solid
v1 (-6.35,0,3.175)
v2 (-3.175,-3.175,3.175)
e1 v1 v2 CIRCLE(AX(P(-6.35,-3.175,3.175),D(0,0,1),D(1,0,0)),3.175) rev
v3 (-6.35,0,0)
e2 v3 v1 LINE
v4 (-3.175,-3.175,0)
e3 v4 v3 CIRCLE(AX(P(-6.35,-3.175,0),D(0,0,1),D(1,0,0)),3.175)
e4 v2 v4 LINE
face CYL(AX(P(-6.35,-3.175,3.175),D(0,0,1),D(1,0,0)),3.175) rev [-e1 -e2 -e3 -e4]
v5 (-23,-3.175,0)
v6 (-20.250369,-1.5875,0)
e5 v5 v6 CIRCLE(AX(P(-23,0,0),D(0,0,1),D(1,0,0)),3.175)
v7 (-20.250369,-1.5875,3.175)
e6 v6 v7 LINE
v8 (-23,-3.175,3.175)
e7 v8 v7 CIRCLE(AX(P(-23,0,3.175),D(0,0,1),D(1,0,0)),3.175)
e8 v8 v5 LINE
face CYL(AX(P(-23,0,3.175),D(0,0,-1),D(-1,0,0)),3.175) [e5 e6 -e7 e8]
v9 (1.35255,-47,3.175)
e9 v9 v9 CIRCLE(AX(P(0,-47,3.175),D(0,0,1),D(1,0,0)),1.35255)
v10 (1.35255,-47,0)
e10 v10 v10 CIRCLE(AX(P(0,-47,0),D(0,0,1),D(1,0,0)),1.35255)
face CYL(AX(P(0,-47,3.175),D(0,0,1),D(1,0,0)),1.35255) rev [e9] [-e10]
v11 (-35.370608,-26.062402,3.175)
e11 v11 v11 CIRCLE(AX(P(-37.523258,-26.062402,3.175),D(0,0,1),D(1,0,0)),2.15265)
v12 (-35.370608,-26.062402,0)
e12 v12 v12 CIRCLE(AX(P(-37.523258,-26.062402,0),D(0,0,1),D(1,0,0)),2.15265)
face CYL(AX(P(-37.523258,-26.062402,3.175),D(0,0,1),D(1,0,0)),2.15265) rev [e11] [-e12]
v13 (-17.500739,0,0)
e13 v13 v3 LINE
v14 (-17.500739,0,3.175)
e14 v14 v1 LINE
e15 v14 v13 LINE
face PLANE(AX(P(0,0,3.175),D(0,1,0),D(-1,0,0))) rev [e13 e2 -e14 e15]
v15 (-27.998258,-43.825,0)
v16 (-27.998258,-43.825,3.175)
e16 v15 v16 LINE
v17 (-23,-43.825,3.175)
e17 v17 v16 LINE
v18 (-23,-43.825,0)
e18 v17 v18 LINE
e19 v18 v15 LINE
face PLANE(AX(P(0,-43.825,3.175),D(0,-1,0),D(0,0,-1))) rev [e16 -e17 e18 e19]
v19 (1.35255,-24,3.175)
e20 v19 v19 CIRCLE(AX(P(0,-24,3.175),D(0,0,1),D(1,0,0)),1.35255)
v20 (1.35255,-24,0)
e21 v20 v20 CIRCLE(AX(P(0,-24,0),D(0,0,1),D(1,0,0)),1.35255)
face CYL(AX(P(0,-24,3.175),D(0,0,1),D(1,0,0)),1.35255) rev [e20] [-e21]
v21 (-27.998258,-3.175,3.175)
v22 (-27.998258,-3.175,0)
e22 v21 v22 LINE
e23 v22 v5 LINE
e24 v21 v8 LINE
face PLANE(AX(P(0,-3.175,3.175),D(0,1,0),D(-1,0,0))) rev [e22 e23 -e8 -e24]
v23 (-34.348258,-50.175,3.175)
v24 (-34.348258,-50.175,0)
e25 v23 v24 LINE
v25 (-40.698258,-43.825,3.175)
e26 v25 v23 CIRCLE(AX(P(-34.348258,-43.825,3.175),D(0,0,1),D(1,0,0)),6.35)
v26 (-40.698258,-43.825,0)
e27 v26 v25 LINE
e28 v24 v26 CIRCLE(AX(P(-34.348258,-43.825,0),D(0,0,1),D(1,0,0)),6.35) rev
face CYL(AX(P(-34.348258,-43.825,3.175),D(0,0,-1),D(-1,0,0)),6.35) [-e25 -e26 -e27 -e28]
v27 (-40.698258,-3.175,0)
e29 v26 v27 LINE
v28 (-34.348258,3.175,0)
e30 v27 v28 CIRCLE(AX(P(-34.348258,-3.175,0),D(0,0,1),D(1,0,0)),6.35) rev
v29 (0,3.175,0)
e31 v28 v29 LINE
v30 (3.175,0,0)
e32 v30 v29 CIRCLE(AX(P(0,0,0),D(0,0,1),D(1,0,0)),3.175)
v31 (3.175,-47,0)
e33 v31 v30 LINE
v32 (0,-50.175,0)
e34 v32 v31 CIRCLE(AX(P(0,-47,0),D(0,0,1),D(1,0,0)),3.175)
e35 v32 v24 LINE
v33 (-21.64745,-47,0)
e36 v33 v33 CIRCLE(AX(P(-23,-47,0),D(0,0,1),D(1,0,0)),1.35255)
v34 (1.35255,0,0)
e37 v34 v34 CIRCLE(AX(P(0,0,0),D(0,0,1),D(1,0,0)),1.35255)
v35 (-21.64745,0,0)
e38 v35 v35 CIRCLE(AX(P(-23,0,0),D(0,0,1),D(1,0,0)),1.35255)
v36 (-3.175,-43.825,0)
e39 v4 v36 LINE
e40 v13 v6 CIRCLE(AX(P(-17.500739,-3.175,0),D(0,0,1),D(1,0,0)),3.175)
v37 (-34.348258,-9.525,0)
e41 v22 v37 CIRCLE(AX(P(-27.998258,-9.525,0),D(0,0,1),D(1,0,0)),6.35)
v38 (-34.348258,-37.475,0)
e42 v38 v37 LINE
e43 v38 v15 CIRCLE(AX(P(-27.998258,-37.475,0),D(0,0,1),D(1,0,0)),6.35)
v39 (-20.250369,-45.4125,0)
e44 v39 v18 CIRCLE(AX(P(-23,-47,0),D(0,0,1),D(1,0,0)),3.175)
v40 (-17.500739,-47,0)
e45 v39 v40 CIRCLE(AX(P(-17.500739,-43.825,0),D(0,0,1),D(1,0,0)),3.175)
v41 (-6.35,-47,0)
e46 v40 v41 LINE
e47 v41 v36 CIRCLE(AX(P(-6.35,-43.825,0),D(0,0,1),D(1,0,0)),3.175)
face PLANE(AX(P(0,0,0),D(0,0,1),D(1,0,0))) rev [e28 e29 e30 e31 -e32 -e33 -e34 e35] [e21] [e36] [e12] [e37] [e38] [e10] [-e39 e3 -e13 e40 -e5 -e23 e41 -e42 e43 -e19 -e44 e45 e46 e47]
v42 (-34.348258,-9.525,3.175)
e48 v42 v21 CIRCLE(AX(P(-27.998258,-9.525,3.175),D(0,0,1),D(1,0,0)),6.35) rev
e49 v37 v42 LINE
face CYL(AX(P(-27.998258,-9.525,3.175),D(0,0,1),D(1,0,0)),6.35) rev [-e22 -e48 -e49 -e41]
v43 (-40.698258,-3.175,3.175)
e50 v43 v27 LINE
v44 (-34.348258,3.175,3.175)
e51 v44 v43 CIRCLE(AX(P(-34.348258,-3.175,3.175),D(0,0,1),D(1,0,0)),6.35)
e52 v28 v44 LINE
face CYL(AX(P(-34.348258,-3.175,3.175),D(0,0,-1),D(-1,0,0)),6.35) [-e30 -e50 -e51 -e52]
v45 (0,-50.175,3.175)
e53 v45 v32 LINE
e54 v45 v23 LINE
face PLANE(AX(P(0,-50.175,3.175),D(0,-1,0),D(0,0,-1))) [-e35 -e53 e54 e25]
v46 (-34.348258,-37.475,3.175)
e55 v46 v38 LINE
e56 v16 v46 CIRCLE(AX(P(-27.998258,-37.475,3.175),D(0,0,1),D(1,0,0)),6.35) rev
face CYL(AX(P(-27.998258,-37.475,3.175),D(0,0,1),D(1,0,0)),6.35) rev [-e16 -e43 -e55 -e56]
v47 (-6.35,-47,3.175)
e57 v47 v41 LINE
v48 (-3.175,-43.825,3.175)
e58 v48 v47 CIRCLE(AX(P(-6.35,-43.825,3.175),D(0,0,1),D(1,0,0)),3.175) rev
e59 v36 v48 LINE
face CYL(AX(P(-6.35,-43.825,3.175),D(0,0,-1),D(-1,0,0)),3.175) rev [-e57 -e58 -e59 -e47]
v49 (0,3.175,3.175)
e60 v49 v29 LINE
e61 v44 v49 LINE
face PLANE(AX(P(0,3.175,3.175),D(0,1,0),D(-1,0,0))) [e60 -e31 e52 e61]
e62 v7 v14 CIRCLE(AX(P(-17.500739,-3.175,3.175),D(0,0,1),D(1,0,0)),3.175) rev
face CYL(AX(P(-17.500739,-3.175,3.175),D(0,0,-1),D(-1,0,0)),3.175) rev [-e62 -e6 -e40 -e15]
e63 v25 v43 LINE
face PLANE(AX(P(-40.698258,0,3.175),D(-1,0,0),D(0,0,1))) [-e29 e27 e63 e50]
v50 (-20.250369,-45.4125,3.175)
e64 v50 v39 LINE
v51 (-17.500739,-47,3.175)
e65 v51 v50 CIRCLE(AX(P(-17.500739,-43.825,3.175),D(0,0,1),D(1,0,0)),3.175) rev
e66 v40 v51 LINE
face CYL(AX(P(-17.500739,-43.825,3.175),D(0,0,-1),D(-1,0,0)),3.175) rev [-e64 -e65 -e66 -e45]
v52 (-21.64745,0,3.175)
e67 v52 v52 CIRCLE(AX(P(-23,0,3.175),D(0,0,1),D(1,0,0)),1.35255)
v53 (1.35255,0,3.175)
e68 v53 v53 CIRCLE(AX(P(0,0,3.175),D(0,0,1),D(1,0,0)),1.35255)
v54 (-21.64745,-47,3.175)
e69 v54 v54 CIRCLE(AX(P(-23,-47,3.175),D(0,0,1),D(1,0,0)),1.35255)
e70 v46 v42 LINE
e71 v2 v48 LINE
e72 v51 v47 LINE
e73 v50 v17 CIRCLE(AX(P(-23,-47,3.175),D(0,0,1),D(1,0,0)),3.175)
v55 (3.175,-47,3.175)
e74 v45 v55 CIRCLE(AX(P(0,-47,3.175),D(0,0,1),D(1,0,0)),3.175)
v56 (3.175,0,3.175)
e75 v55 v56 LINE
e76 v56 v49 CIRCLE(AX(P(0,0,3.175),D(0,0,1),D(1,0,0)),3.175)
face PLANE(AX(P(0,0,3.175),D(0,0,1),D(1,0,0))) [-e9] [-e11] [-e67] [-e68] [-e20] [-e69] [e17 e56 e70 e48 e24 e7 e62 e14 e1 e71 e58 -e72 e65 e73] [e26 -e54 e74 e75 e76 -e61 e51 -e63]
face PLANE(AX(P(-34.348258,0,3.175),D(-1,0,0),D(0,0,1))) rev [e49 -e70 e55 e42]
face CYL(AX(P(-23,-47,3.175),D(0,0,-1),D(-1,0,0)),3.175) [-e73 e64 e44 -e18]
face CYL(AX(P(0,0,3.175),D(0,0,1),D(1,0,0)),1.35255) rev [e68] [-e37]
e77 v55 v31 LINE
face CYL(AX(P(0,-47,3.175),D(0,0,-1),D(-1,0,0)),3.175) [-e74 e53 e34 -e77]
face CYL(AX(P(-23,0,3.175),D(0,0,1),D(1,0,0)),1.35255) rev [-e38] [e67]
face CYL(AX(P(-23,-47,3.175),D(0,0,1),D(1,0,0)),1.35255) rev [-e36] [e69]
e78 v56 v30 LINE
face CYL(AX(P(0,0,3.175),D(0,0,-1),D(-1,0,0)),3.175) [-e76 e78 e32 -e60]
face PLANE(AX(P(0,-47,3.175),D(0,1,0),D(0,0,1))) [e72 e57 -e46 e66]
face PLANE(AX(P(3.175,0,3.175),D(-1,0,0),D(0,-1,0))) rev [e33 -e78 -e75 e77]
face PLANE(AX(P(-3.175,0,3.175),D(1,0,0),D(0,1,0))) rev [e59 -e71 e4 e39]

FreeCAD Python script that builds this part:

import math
import FreeCAD as App
import Part
import Sketcher
Q = App.Units.Quantity


def edges_at(feature, points):
    """Names of the edges that pass closest to the given points."""
    edges = feature.Shape.Edges
    near = lambda p: min(range(len(edges)), key=lambda i: edges[i].distToShape(Part.Vertex(*p))[0])
    return sorted({f"Edge{near(p) + 1}" for p in points})

doc = App.newDocument("Part")
body = doc.addObject("PartDesign::Body", "Body")

# Sketch on XY plane
sketch1 = doc.addObject("Sketcher::SketchObject", "Sketch")
body.addObject(sketch1)
sketch1.AttachmentSupport = (doc.XY_Plane, [""])
sketch1.MapMode = "FlatFace"
sketch1.addGeometry([
    Part.LineSegment(App.Vector(0, 3.2, 0), App.Vector(-40.7, 3.2, 0)),  # 0
    Part.LineSegment(App.Vector(-40.7, 3.2, 0), App.Vector(-40.7, -50.2, 0)),  # 1
    Part.LineSegment(App.Vector(-40.7, -50.2, 0), App.Vector(0, -50.2, 0)),  # 2
    Part.ArcOfCircle(Part.Circle(App.Vector(0, -47, 0), App.Vector(0, 0, 1), 3.2), math.radians(-90), math.radians(0)),  # 3
    Part.LineSegment(App.Vector(3.2, -47, 0), App.Vector(3.2, 0, 0)),  # 4
    Part.ArcOfCircle(Part.Circle(App.Vector(0, 0, 0), App.Vector(0, 0, 1), 3.2), math.radians(0), math.radians(90)),  # 5
    Part.LineSegment(App.Vector(-34.3, -43.8, 0), App.Vector(-34.3, -3.2, 0)),  # 6
    Part.LineSegment(App.Vector(-34.3, -3.2, 0), App.Vector(-23, -3.2, 0)),  # 7
    Part.ArcOfCircle(Part.Circle(App.Vector(-23, 0, 0), App.Vector(0, 0, 1), 3.2), math.radians(-90), math.radians(0)),  # 8
    Part.LineSegment(App.Vector(-19.8, 0, 0), App.Vector(-3.2, 0, 0)),  # 9
    Part.LineSegment(App.Vector(-3.2, 0, 0), App.Vector(-3.2, -47, 0)),  # 10
    Part.LineSegment(App.Vector(-3.2, -47, 0), App.Vector(-19.8, -47, 0)),  # 11
    Part.ArcOfCircle(Part.Circle(App.Vector(-23, -47, 0), App.Vector(0, 0, 1), 3.2), math.radians(0), math.radians(90)),  # 12
    Part.LineSegment(App.Vector(-23, -43.8, 0), App.Vector(-34.3, -43.8, 0)),  # 13
], False)
sketch1.addConstraint([
    Sketcher.Constraint("Coincident", 0, 2, 1, 1),
    Sketcher.Constraint("Coincident", 1, 2, 2, 1),
    Sketcher.Constraint("Tangent", 2, 2, 3, 1),
    Sketcher.Constraint("Tangent", 3, 2, 4, 1),
    Sketcher.Constraint("Tangent", 4, 2, 5, 1),
    Sketcher.Constraint("Tangent", 5, 2, 0, 1),
    Sketcher.Constraint("Coincident", 6, 2, 7, 1),
    Sketcher.Constraint("Tangent", 7, 2, 8, 1),
    Sketcher.Constraint("Coincident", 8, 2, 9, 1),
    Sketcher.Constraint("Coincident", 9, 2, 10, 1),
    Sketcher.Constraint("Coincident", 10, 2, 11, 1),
    Sketcher.Constraint("Coincident", 11, 2, 12, 1),
    Sketcher.Constraint("Tangent", 12, 2, 13, 1),
    Sketcher.Constraint("Coincident", 13, 2, 6, 1),
    Sketcher.Constraint("Horizontal", 0),
    Sketcher.Constraint("Vertical", 1),
    Sketcher.Constraint("Horizontal", 2),
    Sketcher.Constraint("Vertical", 4),
    Sketcher.Constraint("Vertical", 6),
    Sketcher.Constraint("Horizontal", 7),
    Sketcher.Constraint("Horizontal", 9),
    Sketcher.Constraint("Vertical", 10),
    Sketcher.Constraint("Horizontal", 11),
    Sketcher.Constraint("Horizontal", 13),
    Sketcher.Constraint("Coincident", 5, 3, -1, 1),
    Sketcher.Constraint("Equal", 3, 5),
    Sketcher.Constraint("Equal", 5, 8),
    Sketcher.Constraint("Equal", 8, 12),
    Sketcher.Constraint("Symmetric", 4, 2, 9, 2, -1, 1),
    Sketcher.Constraint("PointOnObject", 8, 3, -1),
    Sketcher.Constraint("Horizontal", 3, 3, 12, 3),
    Sketcher.Constraint("Horizontal", 3, 2, 10, 2),
    Sketcher.Constraint("Vertical", 8, 3, 12, 3),
    Sketcher.Constraint("Radius", 3, Q("0.125 in")),
    Sketcher.Constraint("DistanceX", 0, 2, 6, 2, Q("0.25 in")),
    Sketcher.Constraint("DistanceX", 9, 1, 9, 2, 16.65),
    Sketcher.Constraint("DistanceY", 1, 2, 1, 1, 53.35),
    Sketcher.Constraint("DistanceX", 0, 2, 0, 1, 40.698258),
])
pad1 = doc.addObject("PartDesign::Pad", "Pad")
body.addObject(pad1)
pad1.Profile = sketch1
pad1.Length = Q("0.125 in")

# Sketch on XY plane
sketch2 = doc.addObject("Sketcher::SketchObject", "Sketch001")
body.addObject(sketch2)
sketch2.AttachmentSupport = (doc.XY_Plane, [""])
sketch2.MapMode = "FlatFace"
sketch2.AttachmentOffset = App.Placement(App.Vector(0, 0, 0.125 * 25.4), App.Rotation())
sketch2.addGeometry(Part.Circle(App.Vector(-37.5, -26.1, 0), App.Vector(0, 0, 1), 2.2), False)
sketch2.addConstraint([
    Sketcher.Constraint("Diameter", 0, Q("0.1695 in")),
    Sketcher.Constraint("DistanceY", 0, 3, -1, 1, 26.062402),
    Sketcher.Constraint("DistanceX", 0, 3, -1, 1, 37.523258),
])
doc.recompute()
hole = doc.addObject("PartDesign::Hole", "Hole")
body.addObject(hole)
hole.Profile = sketch2
hole.ThreadType = "None"
hole.Diameter = Q("0.1695 in")
hole.DepthType = "ThroughAll"

# Sketch on XY plane
sketch3 = doc.addObject("Sketcher::SketchObject", "Sketch002")
body.addObject(sketch3)
sketch3.AttachmentSupport = (doc.XY_Plane, [""])
sketch3.MapMode = "FlatFace"
sketch3.AttachmentOffset = App.Placement(App.Vector(0, 0, 0.125 * 25.4), App.Rotation())
sketch3.addGeometry([
    Part.Circle(App.Vector(-23, -47, 0), App.Vector(0, 0, 1), 1.4),  # 0
    Part.Circle(App.Vector(0, -47, 0), App.Vector(0, 0, 1), 1.4),  # 1
    Part.Circle(App.Vector(0, 0, 0), App.Vector(0, 0, 1), 1.4),  # 2
    Part.Circle(App.Vector(-23, 0, 0), App.Vector(0, 0, 1), 1.4),  # 3
    Part.Circle(App.Vector(0, -24, 0), App.Vector(0, 0, 1), 1.4),  # 4
], False)
sketch3.addConstraint([
    Sketcher.Constraint("Coincident", 2, 3, -1, 1),
    Sketcher.Constraint("Equal", 0, 1),
    Sketcher.Constraint("Equal", 1, 2),
    Sketcher.Constraint("Equal", 2, 3),
    Sketcher.Constraint("Equal", 3, 4),
    Sketcher.Constraint("PointOnObject", 1, 3, -2),
    Sketcher.Constraint("PointOnObject", 3, 3, -1),
    Sketcher.Constraint("PointOnObject", 4, 3, -2),
    Sketcher.Constraint("Horizontal", 0, 3, 1, 3),
    Sketcher.Constraint("Vertical", 0, 3, 3, 3),
    Sketcher.Constraint("Diameter", 0, Q("0.1065 in")),
    Sketcher.Constraint("DistanceX", 0, 3, -1, 1, 23.0),
    Sketcher.Constraint("DistanceY", 0, 3, -1, 1, 47.0),
    Sketcher.Constraint("DistanceY", 4, 3, -1, 1, 24.0),
])
doc.recompute()
hole2 = doc.addObject("PartDesign::Hole", "Hole001")
body.addObject(hole2)
hole2.Profile = sketch3
hole2.ThreadType = "None"
hole2.Diameter = Q("0.1065 in")
hole2.DepthType = "ThroughAll"
doc.recompute()

fillet = doc.addObject("PartDesign::Fillet", "Fillet")
body.addObject(fillet)
fillet.Base = (hole2, edges_at(hole2, [
    (-3.175, -47, 1.587),
    (-3.175, 0, 1.587),
    (-19.825, 0, 1.587),
    (-19.825, -47, 1.587),
]))
fillet.Radius = Q("0.125 in")
doc.recompute()

fillet2 = doc.addObject("PartDesign::Fillet", "Fillet001")
body.addObject(fillet2)
fillet2.Base = (fillet, edges_at(fillet, [
    (-40.698, -50.175, 1.587),
    (-40.698, 3.175, 1.587),
    (-34.348, -3.175, 1.587),
    (-34.348, -43.825, 1.587),
]))
fillet2.Radius = Q("0.25 in")

doc.recompute()
